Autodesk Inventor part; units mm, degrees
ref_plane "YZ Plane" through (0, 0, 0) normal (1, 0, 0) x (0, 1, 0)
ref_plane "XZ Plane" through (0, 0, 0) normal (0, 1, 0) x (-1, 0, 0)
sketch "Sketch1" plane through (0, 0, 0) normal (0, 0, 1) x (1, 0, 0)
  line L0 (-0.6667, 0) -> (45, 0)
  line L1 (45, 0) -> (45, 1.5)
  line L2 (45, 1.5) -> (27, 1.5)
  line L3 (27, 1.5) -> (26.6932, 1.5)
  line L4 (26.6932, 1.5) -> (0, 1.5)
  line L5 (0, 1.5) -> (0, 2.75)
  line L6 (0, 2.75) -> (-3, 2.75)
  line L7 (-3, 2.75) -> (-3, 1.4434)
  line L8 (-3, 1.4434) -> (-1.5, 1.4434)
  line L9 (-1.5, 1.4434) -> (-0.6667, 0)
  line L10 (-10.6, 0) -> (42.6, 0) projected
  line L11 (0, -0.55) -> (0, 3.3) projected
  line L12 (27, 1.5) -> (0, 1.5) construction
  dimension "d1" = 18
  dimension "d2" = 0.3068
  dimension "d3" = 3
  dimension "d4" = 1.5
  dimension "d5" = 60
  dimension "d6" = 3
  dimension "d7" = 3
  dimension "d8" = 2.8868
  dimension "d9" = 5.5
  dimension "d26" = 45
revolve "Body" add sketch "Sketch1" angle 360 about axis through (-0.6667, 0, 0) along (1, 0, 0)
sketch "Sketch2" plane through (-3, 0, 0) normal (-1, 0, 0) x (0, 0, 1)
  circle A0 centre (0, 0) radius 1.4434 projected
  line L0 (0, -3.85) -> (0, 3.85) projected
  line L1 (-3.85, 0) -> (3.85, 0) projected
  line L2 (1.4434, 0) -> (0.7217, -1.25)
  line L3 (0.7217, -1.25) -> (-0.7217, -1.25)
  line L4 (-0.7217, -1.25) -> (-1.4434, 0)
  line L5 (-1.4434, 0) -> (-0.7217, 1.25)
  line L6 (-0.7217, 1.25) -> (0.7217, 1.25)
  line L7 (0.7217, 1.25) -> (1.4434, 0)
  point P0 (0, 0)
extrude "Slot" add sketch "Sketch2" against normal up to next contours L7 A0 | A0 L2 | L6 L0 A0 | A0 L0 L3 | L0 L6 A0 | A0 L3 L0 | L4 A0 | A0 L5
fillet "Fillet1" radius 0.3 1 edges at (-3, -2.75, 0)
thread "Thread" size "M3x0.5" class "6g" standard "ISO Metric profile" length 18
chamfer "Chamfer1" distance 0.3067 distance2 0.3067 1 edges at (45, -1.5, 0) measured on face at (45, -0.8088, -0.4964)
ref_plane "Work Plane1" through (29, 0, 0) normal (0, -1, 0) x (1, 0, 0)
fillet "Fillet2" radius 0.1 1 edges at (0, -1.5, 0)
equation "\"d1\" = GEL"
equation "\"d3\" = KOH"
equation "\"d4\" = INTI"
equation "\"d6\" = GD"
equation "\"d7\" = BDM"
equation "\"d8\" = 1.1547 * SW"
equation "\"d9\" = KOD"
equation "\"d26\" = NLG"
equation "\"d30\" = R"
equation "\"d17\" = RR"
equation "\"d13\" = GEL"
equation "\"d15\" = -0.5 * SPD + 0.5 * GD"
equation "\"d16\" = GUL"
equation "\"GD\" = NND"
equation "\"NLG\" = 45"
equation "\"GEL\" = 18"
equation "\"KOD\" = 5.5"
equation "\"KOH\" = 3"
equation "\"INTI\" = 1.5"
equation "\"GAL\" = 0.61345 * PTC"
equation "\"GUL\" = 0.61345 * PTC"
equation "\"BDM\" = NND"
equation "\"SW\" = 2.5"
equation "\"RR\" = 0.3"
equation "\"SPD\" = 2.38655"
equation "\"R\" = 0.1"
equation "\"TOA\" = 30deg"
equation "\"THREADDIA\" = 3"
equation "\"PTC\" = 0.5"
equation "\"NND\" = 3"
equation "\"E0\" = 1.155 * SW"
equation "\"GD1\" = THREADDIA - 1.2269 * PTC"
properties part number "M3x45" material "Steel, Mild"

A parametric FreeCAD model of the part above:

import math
import FreeCAD as App
import Part
import Sketcher
from FreeCAD import Vector
Q = App.Units.Quantity


def edges_at(feature, points):
    """Names of the edges that pass closest to the given points."""
    edges = feature.Shape.Edges
    near = lambda p: min(range(len(edges)), key=lambda i: edges[i].distToShape(Part.Vertex(*p))[0])
    return sorted({f"Edge{near(p) + 1}" for p in points})


def add_polygon(sketch, points):
    """Adds a closed chain of lines whose ends are joined by coincident constraints."""
    first, n = sketch.GeometryCount, len(points)
    for a, b in zip(points, points[1:] + points[:1]):
        sketch.addGeometry(Part.LineSegment(App.Vector(*a, 0), App.Vector(*b, 0)), False)
    for i in range(n):
        sketch.addConstraint(Sketcher.Constraint("Coincident", first + i, 2, first + (i + 1) % n, 1))

doc = App.newDocument("Part")
params = doc.addObject("Spreadsheet::Sheet", "Params")
for row, (alias, value) in enumerate([
    ("sketch1_width", "45 mm"),
    ("sketch1_width2", "3 mm"),
    ("sketch1_width3", "1.5 mm"),
    ("sketch1_height", "1.25 mm"),
    ("revolution_angle", "360 deg"),
    ("fillet_radius", "0.3 mm"),
    ("chamfer_size", "0.3067 mm"),
    ("chamfer_size2", "0.3067 mm"),
    ("fillet2_radius", "0.1 mm"),
], start=1):
    params.set(f"A{row}", alias)
    params.set(f"B{row}", "=" + value)
    params.setAlias(f"B{row}", alias)

body = doc.addObject("PartDesign::Body", "Body")

# Sketch on XY plane
sketch1 = body.newObject("Sketcher::SketchObject", "Sketch")
sketch1.AttachmentSupport = (doc.getObject("XY_Plane"), [""])
sketch1.MapMode = "FlatFace"
add_polygon(sketch1, [(45, 0), (45, 1.5), (0, 1.5), (0, 2.8), (-3, 2.8), (-3, 1.4), (-1.5, 1.4), (-0.7, 0)])  # lines 0-7
sketch1.addConstraint([
    Sketcher.Constraint("Vertical", 0),
    Sketcher.Constraint("Horizontal", 1),
    Sketcher.Constraint("Vertical", 2),
    Sketcher.Constraint("Horizontal", 3),
    Sketcher.Constraint("Vertical", 4),
    Sketcher.Constraint("Horizontal", 5),
    Sketcher.Constraint("Horizontal", 7),
    Sketcher.Constraint("PointOnObject", 1, 2, -2),
    Sketcher.Constraint("PointOnObject", 6, 2, -1),
    Sketcher.Constraint("Equal", 5, 0),
    Sketcher.Constraint("DistanceX", 1, 2, 1, 1, 45.0),
    Sketcher.Constraint("DistanceX", 3, 2, 3, 1, 3.0),
    Sketcher.Constraint("DistanceX", 5, 1, 5, 2, 1.5),
    Sketcher.Constraint("DistanceY", 2, 1, 2, 2, 1.25),
    Sketcher.Constraint("DistanceX", 7, 1, 7, 2, 45.6667),
    Sketcher.Constraint("DistanceY", 4, 2, 4, 1, 1.3066),
])
sketch1.setExpression("Constraints[18]", "Params.sketch1_width")
sketch1.setExpression("Constraints[19]", "Params.sketch1_width2")
sketch1.setExpression("Constraints[20]", "Params.sketch1_width3")
sketch1.setExpression("Constraints[21]", "Params.sketch1_height")
revolution = body.newObject("PartDesign::Revolution", "Revolution")
revolution.Profile = sketch1
revolution.ReferenceAxis = (sketch1, ["H_Axis"])
revolution.setExpression("Angle", "Params.revolution_angle")

# Sketch on YZ plane
sketch2 = body.newObject("Sketcher::SketchObject", "Sketch001")
sketch2.AttachmentSupport = (doc.getObject("YZ_Plane"), [""])
sketch2.MapMode = "FlatFace"
sketch2.AttachmentOffset = App.Placement(Vector(0, 0, -3), App.Rotation())
sketch2.addGeometry([
    Part.LineSegment(Vector(1.2, 0.7, 0), Vector(0, 1.4, 0)),  # 0
    Part.ArcOfCircle(Part.Circle(Vector(0, 0, 0), Vector(0, 0, 1), 1.4), math.radians(30), math.radians(90)),  # 1
    Part.ArcOfCircle(Part.Circle(Vector(0, 0, 0), Vector(0, 0, 1), 1.4), math.radians(90), math.radians(150)),  # 2
    Part.LineSegment(Vector(0, 1.4, 0), Vector(-1.2, 0.7, 0)),  # 3
    Part.ArcOfCircle(Part.Circle(Vector(0, 0, 0), Vector(0, 0, 1), 1.4), math.radians(-30), math.radians(30)),  # 4
    Part.LineSegment(Vector(1.2, 0.7, 0), Vector(1.2, -0.7, 0)),  # 5
    Part.LineSegment(Vector(-1.2, 0.7, 0), Vector(-1.2, -0.7, 0)),  # 6
    Part.ArcOfCircle(Part.Circle(Vector(0, 0, 0), Vector(0, 0, 1), 1.4), math.radians(150), math.radians(210)),  # 7
    Part.LineSegment(Vector(-1.2, -0.7, 0), Vector(0, -1.4, 0)),  # 8
    Part.ArcOfCircle(Part.Circle(Vector(0, 0, 0), Vector(0, 0, 1), 1.4), math.radians(-150), math.radians(-90)),  # 9
    Part.ArcOfCircle(Part.Circle(Vector(0, 0, 0), Vector(0, 0, 1), 1.4), math.radians(-90), math.radians(-30)),  # 10
    Part.LineSegment(Vector(0, -1.4, 0), Vector(1.2, -0.7, 0)),  # 11
], False)
sketch2.addConstraint([
    Sketcher.Constraint("Coincident", 0, 1, 1, 1),
    Sketcher.Constraint("Coincident", 1, 2, 0, 2),
    Sketcher.Constraint("Coincident", 2, 1, 3, 1),
    Sketcher.Constraint("Coincident", 3, 2, 2, 2),
    Sketcher.Constraint("Coincident", 4, 1, 5, 2),
    Sketcher.Constraint("Coincident", 5, 1, 4, 2),
    Sketcher.Constraint("Coincident", 6, 1, 7, 1),
    Sketcher.Constraint("Coincident", 7, 2, 6, 2),
    Sketcher.Constraint("Coincident", 8, 1, 9, 1),
    Sketcher.Constraint("Coincident", 9, 2, 8, 2),
    Sketcher.Constraint("Coincident", 10, 1, 11, 1),
    Sketcher.Constraint("Coincident", 11, 2, 10, 2),
    Sketcher.Constraint("Vertical", 5),
    Sketcher.Constraint("Vertical", 6),
    Sketcher.Constraint("Coincident", 1, 3, -1, 1),
    Sketcher.Constraint("Coincident", 2, 3, -1, 1),
    Sketcher.Constraint("Coincident", 4, 3, -1, 1),
    Sketcher.Constraint("Coincident", 7, 3, -1, 1),
    Sketcher.Constraint("Coincident", 9, 3, -1, 1),
    Sketcher.Constraint("Coincident", 10, 3, -1, 1),
    Sketcher.Constraint("Coincident", 2, 1, 1, 2),
    Sketcher.Constraint("Coincident", 5, 1, 0, 1),
    Sketcher.Constraint("Coincident", 6, 1, 3, 2),
    Sketcher.Constraint("Coincident", 8, 1, 7, 2),
    Sketcher.Constraint("Coincident", 10, 1, 9, 2),
    Sketcher.Constraint("PointOnObject", 1, 2, -2),
    Sketcher.Constraint("PointOnObject", 9, 2, -2),
    Sketcher.Constraint("Parallel", 0, 8),
    Sketcher.Constraint("Parallel", 3, 11),
    Sketcher.Constraint("Angle", 0, Q("149.9996 deg")),
    Sketcher.Constraint("Radius", 1, 1.4434),
])
pad1 = body.newObject("PartDesign::Pad", "Pad")
pad1.Profile = sketch2
pad1.Type = "UpToFirst"
doc.recompute()

fillet = body.newObject("PartDesign::Fillet", "Fillet")
fillet.Base = (pad1, edges_at(pad1, [(-3, -2.75, 0)]))
fillet.setExpression("Radius", "Params.fillet_radius")
doc.recompute()

chamfer = body.newObject("PartDesign::Chamfer", "Chamfer")
chamfer.Base = (fillet, edges_at(fillet, [(45, -1.5, 0)]))
chamfer.ChamferType = "Two distances"
chamfer.setExpression("Size", "Params.chamfer_size")
chamfer.setExpression("Size2", "Params.chamfer_size2")
doc.recompute()

fillet2 = body.newObject("PartDesign::Fillet", "Fillet001")
fillet2.Base = (chamfer, edges_at(chamfer, [(0, -1.5, 0)]))
fillet2.setExpression("Radius", "Params.fillet2_radius")

doc.recompute()
